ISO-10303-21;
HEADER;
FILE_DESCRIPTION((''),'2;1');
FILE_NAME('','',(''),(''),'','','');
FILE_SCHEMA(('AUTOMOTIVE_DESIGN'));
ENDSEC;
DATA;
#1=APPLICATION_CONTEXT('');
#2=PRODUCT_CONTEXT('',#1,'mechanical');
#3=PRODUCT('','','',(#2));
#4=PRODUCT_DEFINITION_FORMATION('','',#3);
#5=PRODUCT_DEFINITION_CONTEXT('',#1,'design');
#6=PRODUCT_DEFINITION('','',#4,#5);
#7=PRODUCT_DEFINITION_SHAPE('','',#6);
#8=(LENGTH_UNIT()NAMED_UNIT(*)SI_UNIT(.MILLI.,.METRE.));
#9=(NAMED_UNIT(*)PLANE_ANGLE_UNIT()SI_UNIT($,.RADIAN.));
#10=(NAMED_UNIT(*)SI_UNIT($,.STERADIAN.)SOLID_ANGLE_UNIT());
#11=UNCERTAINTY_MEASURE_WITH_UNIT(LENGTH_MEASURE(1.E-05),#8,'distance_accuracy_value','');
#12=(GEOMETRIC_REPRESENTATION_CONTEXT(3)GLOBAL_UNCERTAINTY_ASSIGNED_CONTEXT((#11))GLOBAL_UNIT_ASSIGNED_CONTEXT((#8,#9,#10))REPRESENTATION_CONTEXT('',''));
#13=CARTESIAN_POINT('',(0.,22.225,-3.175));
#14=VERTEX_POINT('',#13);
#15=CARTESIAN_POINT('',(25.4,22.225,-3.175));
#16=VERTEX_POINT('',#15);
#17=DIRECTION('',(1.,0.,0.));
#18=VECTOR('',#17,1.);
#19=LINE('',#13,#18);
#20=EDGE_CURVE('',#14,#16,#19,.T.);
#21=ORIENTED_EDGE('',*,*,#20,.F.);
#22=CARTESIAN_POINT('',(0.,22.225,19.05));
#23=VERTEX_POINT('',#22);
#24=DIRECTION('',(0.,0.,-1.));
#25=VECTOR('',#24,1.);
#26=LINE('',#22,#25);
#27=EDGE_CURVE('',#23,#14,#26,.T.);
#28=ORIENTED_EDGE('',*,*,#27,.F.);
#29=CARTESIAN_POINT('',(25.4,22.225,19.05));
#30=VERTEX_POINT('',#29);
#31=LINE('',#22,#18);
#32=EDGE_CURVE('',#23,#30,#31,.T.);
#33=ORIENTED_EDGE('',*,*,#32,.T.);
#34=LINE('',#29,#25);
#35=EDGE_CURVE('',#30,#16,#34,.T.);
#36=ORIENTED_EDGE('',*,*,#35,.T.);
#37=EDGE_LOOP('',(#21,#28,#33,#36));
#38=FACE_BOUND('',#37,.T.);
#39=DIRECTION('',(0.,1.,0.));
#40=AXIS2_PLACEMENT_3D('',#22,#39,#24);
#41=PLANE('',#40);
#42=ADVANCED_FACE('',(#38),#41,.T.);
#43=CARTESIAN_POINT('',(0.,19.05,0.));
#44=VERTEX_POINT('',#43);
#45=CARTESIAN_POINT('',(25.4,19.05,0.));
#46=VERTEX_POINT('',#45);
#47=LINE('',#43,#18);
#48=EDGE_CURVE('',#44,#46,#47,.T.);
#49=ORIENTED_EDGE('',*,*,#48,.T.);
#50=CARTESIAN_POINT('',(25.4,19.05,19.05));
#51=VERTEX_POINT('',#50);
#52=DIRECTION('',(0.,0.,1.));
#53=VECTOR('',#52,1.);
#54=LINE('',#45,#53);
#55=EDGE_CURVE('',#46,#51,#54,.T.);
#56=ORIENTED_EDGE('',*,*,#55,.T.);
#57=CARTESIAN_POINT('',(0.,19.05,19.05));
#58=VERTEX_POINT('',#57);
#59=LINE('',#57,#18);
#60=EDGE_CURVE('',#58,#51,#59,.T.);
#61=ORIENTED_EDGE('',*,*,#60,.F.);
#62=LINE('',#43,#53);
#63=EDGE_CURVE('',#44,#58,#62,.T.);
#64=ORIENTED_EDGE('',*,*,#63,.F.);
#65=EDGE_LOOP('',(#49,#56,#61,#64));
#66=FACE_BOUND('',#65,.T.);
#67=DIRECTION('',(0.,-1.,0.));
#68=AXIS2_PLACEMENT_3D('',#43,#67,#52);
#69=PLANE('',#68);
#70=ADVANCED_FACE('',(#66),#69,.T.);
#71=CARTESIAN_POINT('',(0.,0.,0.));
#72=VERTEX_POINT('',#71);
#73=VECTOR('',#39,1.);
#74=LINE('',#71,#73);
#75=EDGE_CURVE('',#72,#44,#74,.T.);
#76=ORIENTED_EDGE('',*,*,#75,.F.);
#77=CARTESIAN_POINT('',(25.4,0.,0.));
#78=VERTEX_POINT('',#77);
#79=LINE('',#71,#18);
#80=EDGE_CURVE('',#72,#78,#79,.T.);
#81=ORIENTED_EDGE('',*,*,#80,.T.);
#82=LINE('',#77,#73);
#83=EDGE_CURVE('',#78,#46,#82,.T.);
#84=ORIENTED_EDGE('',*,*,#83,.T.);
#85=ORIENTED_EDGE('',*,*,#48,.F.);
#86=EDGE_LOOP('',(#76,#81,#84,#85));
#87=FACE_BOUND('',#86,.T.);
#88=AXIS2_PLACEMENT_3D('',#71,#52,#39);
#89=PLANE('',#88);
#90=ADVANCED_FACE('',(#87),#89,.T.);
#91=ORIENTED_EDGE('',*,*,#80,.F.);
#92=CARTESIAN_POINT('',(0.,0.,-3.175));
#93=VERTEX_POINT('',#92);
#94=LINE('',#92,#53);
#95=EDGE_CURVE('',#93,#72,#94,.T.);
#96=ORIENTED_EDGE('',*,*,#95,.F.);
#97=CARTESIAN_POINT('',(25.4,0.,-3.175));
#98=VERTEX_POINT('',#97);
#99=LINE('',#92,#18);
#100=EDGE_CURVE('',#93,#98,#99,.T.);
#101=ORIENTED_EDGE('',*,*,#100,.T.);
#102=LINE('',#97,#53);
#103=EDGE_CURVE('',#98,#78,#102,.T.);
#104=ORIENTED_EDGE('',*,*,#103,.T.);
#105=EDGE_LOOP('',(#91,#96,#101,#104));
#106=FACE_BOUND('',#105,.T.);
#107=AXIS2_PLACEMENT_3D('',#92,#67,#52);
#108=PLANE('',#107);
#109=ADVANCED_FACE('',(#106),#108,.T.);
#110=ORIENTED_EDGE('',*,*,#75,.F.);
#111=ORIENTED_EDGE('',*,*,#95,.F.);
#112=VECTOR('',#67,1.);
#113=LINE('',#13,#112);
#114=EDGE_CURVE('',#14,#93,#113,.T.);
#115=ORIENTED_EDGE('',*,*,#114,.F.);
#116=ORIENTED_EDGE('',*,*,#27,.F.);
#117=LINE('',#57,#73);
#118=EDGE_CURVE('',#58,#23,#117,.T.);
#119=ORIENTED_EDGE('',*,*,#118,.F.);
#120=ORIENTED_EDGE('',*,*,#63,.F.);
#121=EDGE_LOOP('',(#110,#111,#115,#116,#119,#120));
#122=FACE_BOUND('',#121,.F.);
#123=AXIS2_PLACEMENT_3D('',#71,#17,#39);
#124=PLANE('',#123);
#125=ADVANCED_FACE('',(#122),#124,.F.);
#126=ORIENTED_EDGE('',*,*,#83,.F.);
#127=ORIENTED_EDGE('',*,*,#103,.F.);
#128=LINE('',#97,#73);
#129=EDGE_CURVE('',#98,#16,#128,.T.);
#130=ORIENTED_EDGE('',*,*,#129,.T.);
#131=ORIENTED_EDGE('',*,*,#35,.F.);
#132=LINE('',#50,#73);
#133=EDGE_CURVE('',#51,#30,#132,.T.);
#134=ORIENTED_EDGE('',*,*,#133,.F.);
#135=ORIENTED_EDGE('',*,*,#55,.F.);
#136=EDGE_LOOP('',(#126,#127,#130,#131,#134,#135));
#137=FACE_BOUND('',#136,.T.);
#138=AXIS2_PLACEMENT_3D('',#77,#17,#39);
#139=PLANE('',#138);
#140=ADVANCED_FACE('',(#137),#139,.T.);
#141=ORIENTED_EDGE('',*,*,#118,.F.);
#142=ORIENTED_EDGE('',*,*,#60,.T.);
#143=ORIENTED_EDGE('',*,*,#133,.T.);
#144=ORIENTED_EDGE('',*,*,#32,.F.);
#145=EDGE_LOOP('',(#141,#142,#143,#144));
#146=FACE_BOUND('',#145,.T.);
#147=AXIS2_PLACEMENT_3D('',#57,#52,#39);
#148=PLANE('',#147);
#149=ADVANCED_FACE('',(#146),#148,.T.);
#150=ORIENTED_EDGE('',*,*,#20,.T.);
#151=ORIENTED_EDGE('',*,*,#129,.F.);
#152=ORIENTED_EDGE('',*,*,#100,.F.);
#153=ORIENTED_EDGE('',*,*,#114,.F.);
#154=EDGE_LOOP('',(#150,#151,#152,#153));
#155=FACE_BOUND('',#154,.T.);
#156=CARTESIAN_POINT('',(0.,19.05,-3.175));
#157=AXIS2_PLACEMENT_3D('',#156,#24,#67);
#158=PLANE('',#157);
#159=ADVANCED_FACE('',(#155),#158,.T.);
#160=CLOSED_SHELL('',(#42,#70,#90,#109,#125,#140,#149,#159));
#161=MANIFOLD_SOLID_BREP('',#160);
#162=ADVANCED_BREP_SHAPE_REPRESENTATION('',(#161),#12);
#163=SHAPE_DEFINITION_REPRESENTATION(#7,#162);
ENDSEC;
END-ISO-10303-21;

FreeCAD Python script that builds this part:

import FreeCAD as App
import Part
import Sketcher

V = App.Vector
Q = App.Units.Quantity

doc = App.newDocument("Part")
body = doc.addObject("PartDesign::Body", "Body")

# Sketch on YZ plane
sketch1 = doc.addObject("Sketcher::SketchObject", "Sketch")
body.addObject(sketch1)
sketch1.AttachmentSupport = (doc.YZ_Plane, [""])
sketch1.MapMode = "FlatFace"
sketch1.addGeometry([
    Part.LineSegment(V(19.1, 0, 0), V(0, 0, 0)),  # 0
    Part.LineSegment(V(0, 0, 0), V(0, -3.2, 0)),  # 1
    Part.LineSegment(V(0, -3.2, 0), V(22.2, -3.2, 0)),  # 2
    Part.LineSegment(V(22.2, -3.2, 0), V(22.2, 19.1, 0)),  # 3
    Part.LineSegment(V(22.2, 19.1, 0), V(19.1, 19.1, 0)),  # 4
    Part.LineSegment(V(19.1, 19.1, 0), V(19.1, 0, 0)),  # 5
], False)
sketch1.addConstraint([
    Sketcher.Constraint("Coincident", 0, 2, 1, 1),
    Sketcher.Constraint("Coincident", 1, 2, 2, 1),
    Sketcher.Constraint("Coincident", 2, 2, 3, 1),
    Sketcher.Constraint("Coincident", 3, 2, 4, 1),
    Sketcher.Constraint("Coincident", 4, 2, 5, 1),
    Sketcher.Constraint("Coincident", 5, 2, 0, 1),
    Sketcher.Constraint("Horizontal", 0),
    Sketcher.Constraint("Vertical", 1),
    Sketcher.Constraint("Horizontal", 2),
    Sketcher.Constraint("Vertical", 3),
    Sketcher.Constraint("Horizontal", 4),
    Sketcher.Constraint("Vertical", 5),
    Sketcher.Constraint("Coincident", 0, 2, -1, 1),
    Sketcher.Constraint("Equal", 4, 1),
    Sketcher.Constraint("Equal", 2, 3),
    Sketcher.Constraint("DistanceX", 0, 2, 0, 1, Q("0.75 in")),
    Sketcher.Constraint("DistanceX", 2, 1, 2, 2, Q("0.875 in")),
])
pad1 = doc.addObject("PartDesign::Pad", "Pad")
body.addObject(pad1)
pad1.Profile = sketch1
pad1.Length = Q("1 in")

doc.recompute()
